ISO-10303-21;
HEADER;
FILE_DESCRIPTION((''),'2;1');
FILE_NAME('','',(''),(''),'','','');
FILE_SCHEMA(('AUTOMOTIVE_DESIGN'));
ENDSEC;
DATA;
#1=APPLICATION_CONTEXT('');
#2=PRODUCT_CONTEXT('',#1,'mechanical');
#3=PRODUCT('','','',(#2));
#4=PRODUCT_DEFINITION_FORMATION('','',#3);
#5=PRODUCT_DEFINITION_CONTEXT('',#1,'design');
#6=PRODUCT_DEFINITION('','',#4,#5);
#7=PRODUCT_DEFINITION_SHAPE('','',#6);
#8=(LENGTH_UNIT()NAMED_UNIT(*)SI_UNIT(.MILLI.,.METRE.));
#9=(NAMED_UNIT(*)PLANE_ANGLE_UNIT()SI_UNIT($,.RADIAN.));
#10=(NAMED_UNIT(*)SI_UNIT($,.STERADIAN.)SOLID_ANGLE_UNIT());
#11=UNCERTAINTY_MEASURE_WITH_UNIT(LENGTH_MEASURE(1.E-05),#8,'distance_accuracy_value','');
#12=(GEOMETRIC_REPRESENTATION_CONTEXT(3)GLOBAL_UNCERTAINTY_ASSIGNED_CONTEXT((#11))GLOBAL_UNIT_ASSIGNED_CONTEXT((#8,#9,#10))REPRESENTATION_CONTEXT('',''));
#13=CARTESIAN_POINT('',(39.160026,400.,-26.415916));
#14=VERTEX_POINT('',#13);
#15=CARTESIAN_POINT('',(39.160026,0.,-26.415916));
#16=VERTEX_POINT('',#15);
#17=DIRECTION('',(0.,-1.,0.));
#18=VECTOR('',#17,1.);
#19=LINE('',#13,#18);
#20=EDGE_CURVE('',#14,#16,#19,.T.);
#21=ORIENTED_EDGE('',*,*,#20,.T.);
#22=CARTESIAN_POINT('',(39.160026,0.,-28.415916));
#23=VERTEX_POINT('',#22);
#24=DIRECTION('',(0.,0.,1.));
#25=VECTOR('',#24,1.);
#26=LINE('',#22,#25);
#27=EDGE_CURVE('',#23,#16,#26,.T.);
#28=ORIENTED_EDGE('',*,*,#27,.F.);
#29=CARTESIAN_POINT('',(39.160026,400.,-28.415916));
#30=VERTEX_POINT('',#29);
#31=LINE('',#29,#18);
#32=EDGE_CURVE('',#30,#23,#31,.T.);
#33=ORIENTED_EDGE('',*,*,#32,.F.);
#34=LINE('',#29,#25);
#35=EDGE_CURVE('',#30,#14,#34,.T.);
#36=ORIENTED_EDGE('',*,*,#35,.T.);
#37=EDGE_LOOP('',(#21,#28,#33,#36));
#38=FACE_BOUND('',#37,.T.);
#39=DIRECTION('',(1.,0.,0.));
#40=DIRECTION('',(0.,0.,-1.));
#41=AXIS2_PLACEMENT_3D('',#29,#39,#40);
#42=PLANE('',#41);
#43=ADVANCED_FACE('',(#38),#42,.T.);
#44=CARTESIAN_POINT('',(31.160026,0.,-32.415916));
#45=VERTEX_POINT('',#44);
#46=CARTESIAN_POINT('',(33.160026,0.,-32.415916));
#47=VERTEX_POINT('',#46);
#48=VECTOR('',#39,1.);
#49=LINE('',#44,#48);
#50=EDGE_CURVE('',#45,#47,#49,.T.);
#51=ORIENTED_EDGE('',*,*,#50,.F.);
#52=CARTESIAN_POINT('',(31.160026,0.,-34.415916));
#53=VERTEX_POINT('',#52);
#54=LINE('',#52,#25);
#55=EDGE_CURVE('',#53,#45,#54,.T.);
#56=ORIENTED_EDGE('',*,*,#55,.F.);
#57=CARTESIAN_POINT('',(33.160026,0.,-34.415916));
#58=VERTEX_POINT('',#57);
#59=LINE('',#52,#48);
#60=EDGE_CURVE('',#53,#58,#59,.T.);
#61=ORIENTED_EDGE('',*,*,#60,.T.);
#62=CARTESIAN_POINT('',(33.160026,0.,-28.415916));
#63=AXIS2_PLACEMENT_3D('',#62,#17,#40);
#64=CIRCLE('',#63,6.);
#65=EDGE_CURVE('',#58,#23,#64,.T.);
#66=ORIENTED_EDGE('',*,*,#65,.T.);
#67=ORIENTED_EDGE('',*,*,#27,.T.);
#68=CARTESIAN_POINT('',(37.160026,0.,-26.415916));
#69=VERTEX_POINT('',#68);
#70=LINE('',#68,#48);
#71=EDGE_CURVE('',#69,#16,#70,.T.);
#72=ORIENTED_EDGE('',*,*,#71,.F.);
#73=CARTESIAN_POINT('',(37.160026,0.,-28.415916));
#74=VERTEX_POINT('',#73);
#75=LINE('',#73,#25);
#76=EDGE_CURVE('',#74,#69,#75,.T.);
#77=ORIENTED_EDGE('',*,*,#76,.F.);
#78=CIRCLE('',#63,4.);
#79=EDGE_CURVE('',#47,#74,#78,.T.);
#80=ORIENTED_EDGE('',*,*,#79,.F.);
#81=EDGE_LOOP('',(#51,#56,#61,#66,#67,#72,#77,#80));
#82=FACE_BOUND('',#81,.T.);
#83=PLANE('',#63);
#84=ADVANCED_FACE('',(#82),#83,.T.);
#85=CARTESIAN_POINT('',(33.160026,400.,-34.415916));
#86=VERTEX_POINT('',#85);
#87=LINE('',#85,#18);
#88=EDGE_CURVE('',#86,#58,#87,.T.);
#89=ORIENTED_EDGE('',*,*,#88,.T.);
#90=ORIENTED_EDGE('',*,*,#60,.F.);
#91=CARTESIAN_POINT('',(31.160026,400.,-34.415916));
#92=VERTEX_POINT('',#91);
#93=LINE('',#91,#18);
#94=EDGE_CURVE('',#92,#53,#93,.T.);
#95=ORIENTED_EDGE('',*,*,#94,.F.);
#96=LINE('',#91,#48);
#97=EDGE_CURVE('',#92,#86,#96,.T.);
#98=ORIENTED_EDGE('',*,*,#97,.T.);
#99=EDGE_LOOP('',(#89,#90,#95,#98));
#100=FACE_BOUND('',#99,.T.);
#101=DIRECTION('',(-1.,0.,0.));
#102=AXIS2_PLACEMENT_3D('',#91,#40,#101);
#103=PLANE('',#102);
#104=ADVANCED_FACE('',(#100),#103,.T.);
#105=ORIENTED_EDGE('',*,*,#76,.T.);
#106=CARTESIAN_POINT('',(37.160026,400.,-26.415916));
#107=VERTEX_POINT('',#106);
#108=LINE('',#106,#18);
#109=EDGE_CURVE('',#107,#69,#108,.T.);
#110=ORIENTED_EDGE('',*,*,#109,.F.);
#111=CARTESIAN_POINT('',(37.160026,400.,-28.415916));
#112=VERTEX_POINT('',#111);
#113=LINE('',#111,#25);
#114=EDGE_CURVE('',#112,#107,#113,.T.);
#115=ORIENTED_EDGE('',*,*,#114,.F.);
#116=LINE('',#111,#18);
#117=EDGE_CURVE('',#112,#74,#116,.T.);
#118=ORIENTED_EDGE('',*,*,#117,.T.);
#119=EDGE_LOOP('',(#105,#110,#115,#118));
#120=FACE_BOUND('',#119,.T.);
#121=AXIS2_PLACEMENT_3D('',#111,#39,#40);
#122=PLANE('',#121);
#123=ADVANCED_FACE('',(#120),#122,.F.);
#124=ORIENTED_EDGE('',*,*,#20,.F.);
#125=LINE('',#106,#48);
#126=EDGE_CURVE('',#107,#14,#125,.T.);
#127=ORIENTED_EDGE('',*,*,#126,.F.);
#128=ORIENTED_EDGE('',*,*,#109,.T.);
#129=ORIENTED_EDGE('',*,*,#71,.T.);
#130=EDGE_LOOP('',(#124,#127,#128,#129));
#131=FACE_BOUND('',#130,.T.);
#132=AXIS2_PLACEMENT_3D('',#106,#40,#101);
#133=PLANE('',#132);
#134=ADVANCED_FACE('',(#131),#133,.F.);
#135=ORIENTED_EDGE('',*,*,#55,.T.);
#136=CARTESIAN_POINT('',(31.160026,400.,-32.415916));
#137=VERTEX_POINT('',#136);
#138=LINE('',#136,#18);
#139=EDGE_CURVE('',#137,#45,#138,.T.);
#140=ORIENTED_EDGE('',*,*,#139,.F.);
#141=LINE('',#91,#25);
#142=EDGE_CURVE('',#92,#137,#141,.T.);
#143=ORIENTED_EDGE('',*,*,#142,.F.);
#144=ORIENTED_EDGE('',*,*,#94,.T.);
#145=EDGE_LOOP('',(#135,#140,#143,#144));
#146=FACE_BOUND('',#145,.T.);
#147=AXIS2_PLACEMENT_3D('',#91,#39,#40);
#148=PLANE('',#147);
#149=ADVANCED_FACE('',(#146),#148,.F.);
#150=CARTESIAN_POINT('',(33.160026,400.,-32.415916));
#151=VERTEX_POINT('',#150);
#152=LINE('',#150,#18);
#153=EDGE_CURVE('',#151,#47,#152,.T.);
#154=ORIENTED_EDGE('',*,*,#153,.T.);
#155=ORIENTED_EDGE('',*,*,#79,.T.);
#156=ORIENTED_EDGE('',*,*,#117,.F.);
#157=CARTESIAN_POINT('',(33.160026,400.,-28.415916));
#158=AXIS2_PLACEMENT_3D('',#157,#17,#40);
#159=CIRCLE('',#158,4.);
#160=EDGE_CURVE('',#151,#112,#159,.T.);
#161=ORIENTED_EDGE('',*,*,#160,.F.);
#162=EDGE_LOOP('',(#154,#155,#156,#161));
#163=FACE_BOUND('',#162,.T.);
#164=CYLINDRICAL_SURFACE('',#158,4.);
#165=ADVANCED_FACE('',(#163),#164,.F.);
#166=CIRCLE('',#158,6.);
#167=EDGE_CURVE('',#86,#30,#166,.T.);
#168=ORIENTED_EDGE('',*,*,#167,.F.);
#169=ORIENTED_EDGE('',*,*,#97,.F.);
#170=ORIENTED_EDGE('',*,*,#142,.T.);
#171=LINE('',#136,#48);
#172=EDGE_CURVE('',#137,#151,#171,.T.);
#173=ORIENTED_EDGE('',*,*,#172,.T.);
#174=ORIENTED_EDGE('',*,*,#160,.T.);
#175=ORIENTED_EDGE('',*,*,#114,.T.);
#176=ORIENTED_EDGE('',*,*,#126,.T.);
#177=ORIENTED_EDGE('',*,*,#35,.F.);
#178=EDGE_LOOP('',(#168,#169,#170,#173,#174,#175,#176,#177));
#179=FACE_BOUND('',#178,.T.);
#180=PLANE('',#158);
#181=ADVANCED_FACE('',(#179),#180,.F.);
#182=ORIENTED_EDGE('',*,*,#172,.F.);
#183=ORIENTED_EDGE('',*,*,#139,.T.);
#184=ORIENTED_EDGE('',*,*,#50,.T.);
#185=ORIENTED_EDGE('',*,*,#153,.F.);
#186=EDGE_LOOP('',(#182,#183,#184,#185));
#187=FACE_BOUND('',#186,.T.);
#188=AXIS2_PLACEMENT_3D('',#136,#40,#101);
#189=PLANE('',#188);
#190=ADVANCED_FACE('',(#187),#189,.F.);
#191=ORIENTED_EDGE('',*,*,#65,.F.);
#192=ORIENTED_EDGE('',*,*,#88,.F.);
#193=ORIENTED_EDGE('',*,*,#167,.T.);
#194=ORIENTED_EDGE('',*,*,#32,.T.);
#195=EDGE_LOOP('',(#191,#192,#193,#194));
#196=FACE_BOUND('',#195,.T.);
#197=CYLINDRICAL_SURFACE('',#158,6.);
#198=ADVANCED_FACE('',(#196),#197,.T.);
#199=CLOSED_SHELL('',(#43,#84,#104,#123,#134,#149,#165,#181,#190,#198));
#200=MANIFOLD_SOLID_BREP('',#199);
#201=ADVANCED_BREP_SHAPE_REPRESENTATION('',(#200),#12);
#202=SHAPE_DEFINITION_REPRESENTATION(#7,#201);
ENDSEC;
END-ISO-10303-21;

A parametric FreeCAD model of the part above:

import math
import FreeCAD as App
import Part
import Sketcher

V = App.Vector
Q = App.Units.Quantity

doc = App.newDocument("Part")
params = doc.addObject("Spreadsheet::Sheet", "Params")
for row, (alias, value) in enumerate([
    ("sketch1_radius", "6 mm"),
    ("sketch1_radius2", "4 mm"),
    ("pad1_length", "400 mm"),
], start=1):
    params.set(f"A{row}", alias)
    params.set(f"B{row}", "=" + value)
    params.setAlias(f"B{row}", alias)

body = doc.addObject("PartDesign::Body", "Body")

# Sketch on XZ plane
sketch1 = body.newObject("Sketcher::SketchObject", "Sketch")
sketch1.AttachmentSupport = (doc.getObject("XZ_Plane"), [""])
sketch1.MapMode = "FlatFace"
sketch1.addGeometry(Part.LineSegment(V(39.2, -26.4, 0), V(39.2, -28.4, 0)), False)
sketch1.addGeometry(Part.ArcOfCircle(Part.Circle(V(33.2, -28.4, 0), V(0, 0, 1), 6), math.radians(-90), math.radians(0)), False)
sketch1.addGeometry(Part.LineSegment(V(33.2, -34.4, 0), V(31.2, -34.4, 0)), False)
sketch1.addGeometry(Part.LineSegment(V(31.2, -34.4, 0), V(31.2, -32.4, 0)), False)
sketch1.addGeometry(Part.LineSegment(V(31.2, -32.4, 0), V(33.2, -32.4, 0)), False)
sketch1.addGeometry(Part.ArcOfCircle(Part.Circle(V(33.2, -28.4, 0), V(0, 0, 1), 4), math.radians(-90), math.radians(0)), False)
sketch1.addGeometry(Part.LineSegment(V(37.2, -28.4, 0), V(37.2, -26.4, 0)), False)
sketch1.addGeometry(Part.LineSegment(V(37.2, -26.4, 0), V(39.2, -26.4, 0)), False)
sketch1.addConstraint(Sketcher.Constraint("Tangent", 0, 2, 1, 2))
sketch1.addConstraint(Sketcher.Constraint("Tangent", 1, 1, 2, 1))
sketch1.addConstraint(Sketcher.Constraint("Coincident", 2, 2, 3, 1))
sketch1.addConstraint(Sketcher.Constraint("Coincident", 3, 2, 4, 1))
sketch1.addConstraint(Sketcher.Constraint("Tangent", 4, 2, 5, 1))
sketch1.addConstraint(Sketcher.Constraint("Tangent", 5, 2, 6, 1))
sketch1.addConstraint(Sketcher.Constraint("Coincident", 6, 2, 7, 1))
sketch1.addConstraint(Sketcher.Constraint("Coincident", 7, 2, 0, 1))
sketch1.addConstraint(Sketcher.Constraint("Vertical", 0))
sketch1.addConstraint(Sketcher.Constraint("Horizontal", 2))
sketch1.addConstraint(Sketcher.Constraint("Vertical", 3))
sketch1.addConstraint(Sketcher.Constraint("Horizontal", 4))
sketch1.addConstraint(Sketcher.Constraint("Vertical", 6))
sketch1.addConstraint(Sketcher.Constraint("Horizontal", 7))
sketch1.addConstraint(Sketcher.Constraint("Coincident", 5, 3, 1, 3))
sketch1.addConstraint(Sketcher.Constraint("Equal", 4, 7))
sketch1.addConstraint(Sketcher.Constraint("Equal", 7, 0))
sketch1.addConstraint(Sketcher.Constraint("Radius", 1, Q("6 mm")))
sketch1.addConstraint(Sketcher.Constraint("Radius", 5, Q("4 mm")))
sketch1.addConstraint(Sketcher.Constraint("DistanceX", -1, 1, 1, 3, Q("33.160026 mm")))
sketch1.addConstraint(Sketcher.Constraint("DistanceY", 1, 3, -1, 1, Q("28.415916 mm")))
sketch1.setExpression("Constraints[17]", "Params.sketch1_radius")
sketch1.setExpression("Constraints[18]", "Params.sketch1_radius2")
pad1 = body.newObject("PartDesign::Pad", "Pad")
pad1.Profile = sketch1
pad1.setExpression("Length", "Params.pad1_length")
pad1.Reversed = True

doc.recompute()
